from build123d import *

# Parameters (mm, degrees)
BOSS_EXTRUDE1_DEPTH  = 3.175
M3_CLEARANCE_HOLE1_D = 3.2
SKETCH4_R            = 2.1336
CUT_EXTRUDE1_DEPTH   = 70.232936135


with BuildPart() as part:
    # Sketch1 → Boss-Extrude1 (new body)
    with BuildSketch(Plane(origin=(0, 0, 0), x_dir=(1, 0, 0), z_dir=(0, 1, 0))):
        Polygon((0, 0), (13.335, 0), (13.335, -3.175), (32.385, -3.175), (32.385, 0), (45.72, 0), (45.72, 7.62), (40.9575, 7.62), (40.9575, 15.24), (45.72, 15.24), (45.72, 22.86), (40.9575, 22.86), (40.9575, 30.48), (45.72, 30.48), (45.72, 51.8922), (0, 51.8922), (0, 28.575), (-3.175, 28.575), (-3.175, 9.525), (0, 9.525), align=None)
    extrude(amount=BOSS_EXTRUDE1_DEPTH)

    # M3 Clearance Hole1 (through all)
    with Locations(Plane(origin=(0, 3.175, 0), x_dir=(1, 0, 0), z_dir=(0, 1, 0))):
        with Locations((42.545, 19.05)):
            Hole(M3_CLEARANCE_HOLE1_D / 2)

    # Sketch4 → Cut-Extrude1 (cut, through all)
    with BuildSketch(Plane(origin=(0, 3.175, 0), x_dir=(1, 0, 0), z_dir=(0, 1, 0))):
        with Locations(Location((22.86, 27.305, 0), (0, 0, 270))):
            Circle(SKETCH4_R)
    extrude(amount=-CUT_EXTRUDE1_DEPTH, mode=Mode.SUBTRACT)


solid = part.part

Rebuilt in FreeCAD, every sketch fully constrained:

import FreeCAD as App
import Part
import Sketcher
from FreeCAD import Vector
Q = App.Units.Quantity

doc = App.newDocument("Part")
body = doc.addObject("PartDesign::Body", "Body")

# Sketch on XZ plane
sketch1 = doc.addObject("Sketcher::SketchObject", "Sketch")
body.addObject(sketch1)
sketch1.AttachmentSupport = (doc.XZ_Plane, [""])
sketch1.MapMode = "FlatFace"
sketch1.addGeometry(Part.LineSegment(Vector(0, 0, 0), Vector(13.335, 0, 0)), False)
sketch1.addGeometry(Part.LineSegment(Vector(13.335, 0, 0), Vector(13.335, 3.175, 0)), False)
sketch1.addGeometry(Part.LineSegment(Vector(13.335, 3.175, 0), Vector(32.385, 3.175, 0)), False)
sketch1.addGeometry(Part.LineSegment(Vector(32.385, 3.175, 0), Vector(32.385, 0, 0)), False)
sketch1.addGeometry(Part.LineSegment(Vector(32.385, 0, 0), Vector(45.72, 0, 0)), False)
sketch1.addGeometry(Part.LineSegment(Vector(45.72, 0, 0), Vector(45.72, -7.62, 0)), False)
sketch1.addGeometry(Part.LineSegment(Vector(45.72, -7.62, 0), Vector(40.9575, -7.62, 0)), False)
sketch1.addGeometry(Part.LineSegment(Vector(40.9575, -7.62, 0), Vector(40.9575, -15.24, 0)), False)
sketch1.addGeometry(Part.LineSegment(Vector(40.9575, -15.24, 0), Vector(45.72, -15.24, 0)), False)
sketch1.addGeometry(Part.LineSegment(Vector(45.72, -15.24, 0), Vector(45.72, -22.86, 0)), False)
sketch1.addGeometry(Part.LineSegment(Vector(45.72, -22.86, 0), Vector(40.9575, -22.86, 0)), False)
sketch1.addGeometry(Part.LineSegment(Vector(40.9575, -22.86, 0), Vector(40.9575, -30.48, 0)), False)
sketch1.addGeometry(Part.LineSegment(Vector(40.9575, -30.48, 0), Vector(45.72, -30.48, 0)), False)
sketch1.addGeometry(Part.LineSegment(Vector(45.72, -30.48, 0), Vector(45.72, -51.8922, 0)), False)
sketch1.addGeometry(Part.LineSegment(Vector(45.72, -51.8922, 0), Vector(0, -51.8922, 0)), False)
sketch1.addGeometry(Part.LineSegment(Vector(0, -51.8922, 0), Vector(0, -28.575, 0)), False)
sketch1.addGeometry(Part.LineSegment(Vector(0, -28.575, 0), Vector(-3.175, -28.575, 0)), False)
sketch1.addGeometry(Part.LineSegment(Vector(-3.175, -28.575, 0), Vector(-3.175, -9.525, 0)), False)
sketch1.addGeometry(Part.LineSegment(Vector(-3.175, -9.525, 0), Vector(0, -9.525, 0)), False)
sketch1.addGeometry(Part.LineSegment(Vector(0, -9.525, 0), Vector(0, 0, 0)), False)
sketch1.addConstraint(Sketcher.Constraint("Coincident", 0, 2, 1, 1))
sketch1.addConstraint(Sketcher.Constraint("Coincident", 1, 2, 2, 1))
sketch1.addConstraint(Sketcher.Constraint("Coincident", 2, 2, 3, 1))
sketch1.addConstraint(Sketcher.Constraint("Coincident", 3, 2, 4, 1))
sketch1.addConstraint(Sketcher.Constraint("Coincident", 4, 2, 5, 1))
sketch1.addConstraint(Sketcher.Constraint("Coincident", 5, 2, 6, 1))
sketch1.addConstraint(Sketcher.Constraint("Coincident", 6, 2, 7, 1))
sketch1.addConstraint(Sketcher.Constraint("Coincident", 7, 2, 8, 1))
sketch1.addConstraint(Sketcher.Constraint("Coincident", 8, 2, 9, 1))
sketch1.addConstraint(Sketcher.Constraint("Coincident", 9, 2, 10, 1))
sketch1.addConstraint(Sketcher.Constraint("Coincident", 10, 2, 11, 1))
sketch1.addConstraint(Sketcher.Constraint("Coincident", 11, 2, 12, 1))
sketch1.addConstraint(Sketcher.Constraint("Coincident", 12, 2, 13, 1))
sketch1.addConstraint(Sketcher.Constraint("Coincident", 13, 2, 14, 1))
sketch1.addConstraint(Sketcher.Constraint("Coincident", 14, 2, 15, 1))
sketch1.addConstraint(Sketcher.Constraint("Coincident", 15, 2, 16, 1))
sketch1.addConstraint(Sketcher.Constraint("Coincident", 16, 2, 17, 1))
sketch1.addConstraint(Sketcher.Constraint("Coincident", 17, 2, 18, 1))
sketch1.addConstraint(Sketcher.Constraint("Coincident", 18, 2, 19, 1))
sketch1.addConstraint(Sketcher.Constraint("Coincident", 19, 2, 0, 1))
sketch1.addConstraint(Sketcher.Constraint("Horizontal", 0))
sketch1.addConstraint(Sketcher.Constraint("Vertical", 1))
sketch1.addConstraint(Sketcher.Constraint("Horizontal", 2))
sketch1.addConstraint(Sketcher.Constraint("Vertical", 3))
sketch1.addConstraint(Sketcher.Constraint("Horizontal", 4))
sketch1.addConstraint(Sketcher.Constraint("Vertical", 5))
sketch1.addConstraint(Sketcher.Constraint("Horizontal", 6))
sketch1.addConstraint(Sketcher.Constraint("Vertical", 7))
sketch1.addConstraint(Sketcher.Constraint("Horizontal", 8))
sketch1.addConstraint(Sketcher.Constraint("Vertical", 9))
sketch1.addConstraint(Sketcher.Constraint("Horizontal", 10))
sketch1.addConstraint(Sketcher.Constraint("Vertical", 11))
sketch1.addConstraint(Sketcher.Constraint("Horizontal", 12))
sketch1.addConstraint(Sketcher.Constraint("Vertical", 13))
sketch1.addConstraint(Sketcher.Constraint("Horizontal", 14))
sketch1.addConstraint(Sketcher.Constraint("Vertical", 15))
sketch1.addConstraint(Sketcher.Constraint("Horizontal", 16))
sketch1.addConstraint(Sketcher.Constraint("Vertical", 17))
sketch1.addConstraint(Sketcher.Constraint("Horizontal", 18))
sketch1.addConstraint(Sketcher.Constraint("Vertical", 19))
sketch1.addConstraint(Sketcher.Constraint("Coincident", 19, 2, -1, 1))
sketch1.addConstraint(Sketcher.Constraint("PointOnObject", 3, 2, -1))
sketch1.addConstraint(Sketcher.Constraint("PointOnObject", 14, 2, -2))
sketch1.addConstraint(Sketcher.Constraint("Vertical", 5, 2, 8, 2))
sketch1.addConstraint(Sketcher.Constraint("Vertical", 7, 2, 10, 2))
sketch1.addConstraint(Sketcher.Constraint("Vertical", 9, 2, 12, 2))
sketch1.addConstraint(Sketcher.Constraint("Equal", 0, 4))
sketch1.addConstraint(Sketcher.Constraint("Equal", 18, 1))
sketch1.addConstraint(Sketcher.Constraint("Equal", 5, 7))
sketch1.addConstraint(Sketcher.Constraint("Equal", 7, 9))
sketch1.addConstraint(Sketcher.Constraint("Equal", 9, 11))
sketch1.addConstraint(Sketcher.Constraint("Equal", 2, 17))
sketch1.addConstraint(Sketcher.Constraint("DistanceX", 14, 2, 14, 1, Q("1.8 in")))
sketch1.addConstraint(Sketcher.Constraint("DistanceY", 5, 2, 5, 1, Q("0.3 in")))
sketch1.addConstraint(Sketcher.Constraint("DistanceX", 2, 1, 2, 2, Q("0.75 in")))
sketch1.addConstraint(Sketcher.Constraint("DistanceY", 17, 2, 1, 2, Q("0.5 in")))
sketch1.addConstraint(Sketcher.Constraint("DistanceX", 17, 2, 3, 2, Q("1.4 in")))
sketch1.addConstraint(Sketcher.Constraint("DistanceX", 6, 2, 6, 1, Q("0.1875 in")))
sketch1.addConstraint(Sketcher.Constraint("DistanceY", 13, 2, 13, 1, Q("0.843 in")))
pad1 = doc.addObject("PartDesign::Pad", "Pad")
body.addObject(pad1)
pad1.Profile = sketch1
pad1.Length = Q("0.125 in")
pad1.Reversed = True

# Sketch on XZ plane
sketch2 = doc.addObject("Sketcher::SketchObject", "Sketch001")
body.addObject(sketch2)
sketch2.AttachmentSupport = (doc.XZ_Plane, [""])
sketch2.MapMode = "FlatFace"
sketch2.AttachmentOffset = App.Placement(Vector(0, 0, -0.125 * 25.4), App.Rotation())
sketch2.addGeometry(Part.Circle(Vector(42.545, -19.05, 0), Vector(0, 0, 1), 1.6), False)
sketch2.addConstraint(Sketcher.Constraint("Diameter", 0, Q("3.2 mm")))
sketch2.addConstraint(Sketcher.Constraint("DistanceY", 0, 3, -1, 1, Q("0.75 in")))
sketch2.addConstraint(Sketcher.Constraint("DistanceX", -1, 1, 0, 3, Q("1.675 in")))
doc.recompute()
hole = doc.addObject("PartDesign::Hole", "Hole")
body.addObject(hole)
hole.Profile = sketch2
hole.ThreadType = "None"
hole.Diameter = 3.2
hole.DepthType = "ThroughAll"
hole.Reversed = True

# Sketch on XZ plane
sketch3 = doc.addObject("Sketcher::SketchObject", "Sketch002")
body.addObject(sketch3)
sketch3.AttachmentSupport = (doc.XZ_Plane, [""])
sketch3.MapMode = "FlatFace"
sketch3.AttachmentOffset = App.Placement(Vector(0, 0, -0.125 * 25.4), App.Rotation())
sketch3.addGeometry(Part.Circle(Vector(22.86, -27.305, 0), Vector(0, 0, 1), 2.1336), False)
sketch3.addConstraint(Sketcher.Constraint("Diameter", 0, Q("0.168 in")))
sketch3.addConstraint(Sketcher.Constraint("DistanceX", -1, 1, 0, 3, Q("0.9 in")))
sketch3.addConstraint(Sketcher.Constraint("DistanceY", 0, 3, -1, 1, Q("1.075 in")))
pocket1 = doc.addObject("PartDesign::Pocket", "Pocket")
body.addObject(pocket1)
pocket1.Profile = sketch3
pocket1.Type = "ThroughAll"
pocket1.Reversed = True

doc.recompute()
